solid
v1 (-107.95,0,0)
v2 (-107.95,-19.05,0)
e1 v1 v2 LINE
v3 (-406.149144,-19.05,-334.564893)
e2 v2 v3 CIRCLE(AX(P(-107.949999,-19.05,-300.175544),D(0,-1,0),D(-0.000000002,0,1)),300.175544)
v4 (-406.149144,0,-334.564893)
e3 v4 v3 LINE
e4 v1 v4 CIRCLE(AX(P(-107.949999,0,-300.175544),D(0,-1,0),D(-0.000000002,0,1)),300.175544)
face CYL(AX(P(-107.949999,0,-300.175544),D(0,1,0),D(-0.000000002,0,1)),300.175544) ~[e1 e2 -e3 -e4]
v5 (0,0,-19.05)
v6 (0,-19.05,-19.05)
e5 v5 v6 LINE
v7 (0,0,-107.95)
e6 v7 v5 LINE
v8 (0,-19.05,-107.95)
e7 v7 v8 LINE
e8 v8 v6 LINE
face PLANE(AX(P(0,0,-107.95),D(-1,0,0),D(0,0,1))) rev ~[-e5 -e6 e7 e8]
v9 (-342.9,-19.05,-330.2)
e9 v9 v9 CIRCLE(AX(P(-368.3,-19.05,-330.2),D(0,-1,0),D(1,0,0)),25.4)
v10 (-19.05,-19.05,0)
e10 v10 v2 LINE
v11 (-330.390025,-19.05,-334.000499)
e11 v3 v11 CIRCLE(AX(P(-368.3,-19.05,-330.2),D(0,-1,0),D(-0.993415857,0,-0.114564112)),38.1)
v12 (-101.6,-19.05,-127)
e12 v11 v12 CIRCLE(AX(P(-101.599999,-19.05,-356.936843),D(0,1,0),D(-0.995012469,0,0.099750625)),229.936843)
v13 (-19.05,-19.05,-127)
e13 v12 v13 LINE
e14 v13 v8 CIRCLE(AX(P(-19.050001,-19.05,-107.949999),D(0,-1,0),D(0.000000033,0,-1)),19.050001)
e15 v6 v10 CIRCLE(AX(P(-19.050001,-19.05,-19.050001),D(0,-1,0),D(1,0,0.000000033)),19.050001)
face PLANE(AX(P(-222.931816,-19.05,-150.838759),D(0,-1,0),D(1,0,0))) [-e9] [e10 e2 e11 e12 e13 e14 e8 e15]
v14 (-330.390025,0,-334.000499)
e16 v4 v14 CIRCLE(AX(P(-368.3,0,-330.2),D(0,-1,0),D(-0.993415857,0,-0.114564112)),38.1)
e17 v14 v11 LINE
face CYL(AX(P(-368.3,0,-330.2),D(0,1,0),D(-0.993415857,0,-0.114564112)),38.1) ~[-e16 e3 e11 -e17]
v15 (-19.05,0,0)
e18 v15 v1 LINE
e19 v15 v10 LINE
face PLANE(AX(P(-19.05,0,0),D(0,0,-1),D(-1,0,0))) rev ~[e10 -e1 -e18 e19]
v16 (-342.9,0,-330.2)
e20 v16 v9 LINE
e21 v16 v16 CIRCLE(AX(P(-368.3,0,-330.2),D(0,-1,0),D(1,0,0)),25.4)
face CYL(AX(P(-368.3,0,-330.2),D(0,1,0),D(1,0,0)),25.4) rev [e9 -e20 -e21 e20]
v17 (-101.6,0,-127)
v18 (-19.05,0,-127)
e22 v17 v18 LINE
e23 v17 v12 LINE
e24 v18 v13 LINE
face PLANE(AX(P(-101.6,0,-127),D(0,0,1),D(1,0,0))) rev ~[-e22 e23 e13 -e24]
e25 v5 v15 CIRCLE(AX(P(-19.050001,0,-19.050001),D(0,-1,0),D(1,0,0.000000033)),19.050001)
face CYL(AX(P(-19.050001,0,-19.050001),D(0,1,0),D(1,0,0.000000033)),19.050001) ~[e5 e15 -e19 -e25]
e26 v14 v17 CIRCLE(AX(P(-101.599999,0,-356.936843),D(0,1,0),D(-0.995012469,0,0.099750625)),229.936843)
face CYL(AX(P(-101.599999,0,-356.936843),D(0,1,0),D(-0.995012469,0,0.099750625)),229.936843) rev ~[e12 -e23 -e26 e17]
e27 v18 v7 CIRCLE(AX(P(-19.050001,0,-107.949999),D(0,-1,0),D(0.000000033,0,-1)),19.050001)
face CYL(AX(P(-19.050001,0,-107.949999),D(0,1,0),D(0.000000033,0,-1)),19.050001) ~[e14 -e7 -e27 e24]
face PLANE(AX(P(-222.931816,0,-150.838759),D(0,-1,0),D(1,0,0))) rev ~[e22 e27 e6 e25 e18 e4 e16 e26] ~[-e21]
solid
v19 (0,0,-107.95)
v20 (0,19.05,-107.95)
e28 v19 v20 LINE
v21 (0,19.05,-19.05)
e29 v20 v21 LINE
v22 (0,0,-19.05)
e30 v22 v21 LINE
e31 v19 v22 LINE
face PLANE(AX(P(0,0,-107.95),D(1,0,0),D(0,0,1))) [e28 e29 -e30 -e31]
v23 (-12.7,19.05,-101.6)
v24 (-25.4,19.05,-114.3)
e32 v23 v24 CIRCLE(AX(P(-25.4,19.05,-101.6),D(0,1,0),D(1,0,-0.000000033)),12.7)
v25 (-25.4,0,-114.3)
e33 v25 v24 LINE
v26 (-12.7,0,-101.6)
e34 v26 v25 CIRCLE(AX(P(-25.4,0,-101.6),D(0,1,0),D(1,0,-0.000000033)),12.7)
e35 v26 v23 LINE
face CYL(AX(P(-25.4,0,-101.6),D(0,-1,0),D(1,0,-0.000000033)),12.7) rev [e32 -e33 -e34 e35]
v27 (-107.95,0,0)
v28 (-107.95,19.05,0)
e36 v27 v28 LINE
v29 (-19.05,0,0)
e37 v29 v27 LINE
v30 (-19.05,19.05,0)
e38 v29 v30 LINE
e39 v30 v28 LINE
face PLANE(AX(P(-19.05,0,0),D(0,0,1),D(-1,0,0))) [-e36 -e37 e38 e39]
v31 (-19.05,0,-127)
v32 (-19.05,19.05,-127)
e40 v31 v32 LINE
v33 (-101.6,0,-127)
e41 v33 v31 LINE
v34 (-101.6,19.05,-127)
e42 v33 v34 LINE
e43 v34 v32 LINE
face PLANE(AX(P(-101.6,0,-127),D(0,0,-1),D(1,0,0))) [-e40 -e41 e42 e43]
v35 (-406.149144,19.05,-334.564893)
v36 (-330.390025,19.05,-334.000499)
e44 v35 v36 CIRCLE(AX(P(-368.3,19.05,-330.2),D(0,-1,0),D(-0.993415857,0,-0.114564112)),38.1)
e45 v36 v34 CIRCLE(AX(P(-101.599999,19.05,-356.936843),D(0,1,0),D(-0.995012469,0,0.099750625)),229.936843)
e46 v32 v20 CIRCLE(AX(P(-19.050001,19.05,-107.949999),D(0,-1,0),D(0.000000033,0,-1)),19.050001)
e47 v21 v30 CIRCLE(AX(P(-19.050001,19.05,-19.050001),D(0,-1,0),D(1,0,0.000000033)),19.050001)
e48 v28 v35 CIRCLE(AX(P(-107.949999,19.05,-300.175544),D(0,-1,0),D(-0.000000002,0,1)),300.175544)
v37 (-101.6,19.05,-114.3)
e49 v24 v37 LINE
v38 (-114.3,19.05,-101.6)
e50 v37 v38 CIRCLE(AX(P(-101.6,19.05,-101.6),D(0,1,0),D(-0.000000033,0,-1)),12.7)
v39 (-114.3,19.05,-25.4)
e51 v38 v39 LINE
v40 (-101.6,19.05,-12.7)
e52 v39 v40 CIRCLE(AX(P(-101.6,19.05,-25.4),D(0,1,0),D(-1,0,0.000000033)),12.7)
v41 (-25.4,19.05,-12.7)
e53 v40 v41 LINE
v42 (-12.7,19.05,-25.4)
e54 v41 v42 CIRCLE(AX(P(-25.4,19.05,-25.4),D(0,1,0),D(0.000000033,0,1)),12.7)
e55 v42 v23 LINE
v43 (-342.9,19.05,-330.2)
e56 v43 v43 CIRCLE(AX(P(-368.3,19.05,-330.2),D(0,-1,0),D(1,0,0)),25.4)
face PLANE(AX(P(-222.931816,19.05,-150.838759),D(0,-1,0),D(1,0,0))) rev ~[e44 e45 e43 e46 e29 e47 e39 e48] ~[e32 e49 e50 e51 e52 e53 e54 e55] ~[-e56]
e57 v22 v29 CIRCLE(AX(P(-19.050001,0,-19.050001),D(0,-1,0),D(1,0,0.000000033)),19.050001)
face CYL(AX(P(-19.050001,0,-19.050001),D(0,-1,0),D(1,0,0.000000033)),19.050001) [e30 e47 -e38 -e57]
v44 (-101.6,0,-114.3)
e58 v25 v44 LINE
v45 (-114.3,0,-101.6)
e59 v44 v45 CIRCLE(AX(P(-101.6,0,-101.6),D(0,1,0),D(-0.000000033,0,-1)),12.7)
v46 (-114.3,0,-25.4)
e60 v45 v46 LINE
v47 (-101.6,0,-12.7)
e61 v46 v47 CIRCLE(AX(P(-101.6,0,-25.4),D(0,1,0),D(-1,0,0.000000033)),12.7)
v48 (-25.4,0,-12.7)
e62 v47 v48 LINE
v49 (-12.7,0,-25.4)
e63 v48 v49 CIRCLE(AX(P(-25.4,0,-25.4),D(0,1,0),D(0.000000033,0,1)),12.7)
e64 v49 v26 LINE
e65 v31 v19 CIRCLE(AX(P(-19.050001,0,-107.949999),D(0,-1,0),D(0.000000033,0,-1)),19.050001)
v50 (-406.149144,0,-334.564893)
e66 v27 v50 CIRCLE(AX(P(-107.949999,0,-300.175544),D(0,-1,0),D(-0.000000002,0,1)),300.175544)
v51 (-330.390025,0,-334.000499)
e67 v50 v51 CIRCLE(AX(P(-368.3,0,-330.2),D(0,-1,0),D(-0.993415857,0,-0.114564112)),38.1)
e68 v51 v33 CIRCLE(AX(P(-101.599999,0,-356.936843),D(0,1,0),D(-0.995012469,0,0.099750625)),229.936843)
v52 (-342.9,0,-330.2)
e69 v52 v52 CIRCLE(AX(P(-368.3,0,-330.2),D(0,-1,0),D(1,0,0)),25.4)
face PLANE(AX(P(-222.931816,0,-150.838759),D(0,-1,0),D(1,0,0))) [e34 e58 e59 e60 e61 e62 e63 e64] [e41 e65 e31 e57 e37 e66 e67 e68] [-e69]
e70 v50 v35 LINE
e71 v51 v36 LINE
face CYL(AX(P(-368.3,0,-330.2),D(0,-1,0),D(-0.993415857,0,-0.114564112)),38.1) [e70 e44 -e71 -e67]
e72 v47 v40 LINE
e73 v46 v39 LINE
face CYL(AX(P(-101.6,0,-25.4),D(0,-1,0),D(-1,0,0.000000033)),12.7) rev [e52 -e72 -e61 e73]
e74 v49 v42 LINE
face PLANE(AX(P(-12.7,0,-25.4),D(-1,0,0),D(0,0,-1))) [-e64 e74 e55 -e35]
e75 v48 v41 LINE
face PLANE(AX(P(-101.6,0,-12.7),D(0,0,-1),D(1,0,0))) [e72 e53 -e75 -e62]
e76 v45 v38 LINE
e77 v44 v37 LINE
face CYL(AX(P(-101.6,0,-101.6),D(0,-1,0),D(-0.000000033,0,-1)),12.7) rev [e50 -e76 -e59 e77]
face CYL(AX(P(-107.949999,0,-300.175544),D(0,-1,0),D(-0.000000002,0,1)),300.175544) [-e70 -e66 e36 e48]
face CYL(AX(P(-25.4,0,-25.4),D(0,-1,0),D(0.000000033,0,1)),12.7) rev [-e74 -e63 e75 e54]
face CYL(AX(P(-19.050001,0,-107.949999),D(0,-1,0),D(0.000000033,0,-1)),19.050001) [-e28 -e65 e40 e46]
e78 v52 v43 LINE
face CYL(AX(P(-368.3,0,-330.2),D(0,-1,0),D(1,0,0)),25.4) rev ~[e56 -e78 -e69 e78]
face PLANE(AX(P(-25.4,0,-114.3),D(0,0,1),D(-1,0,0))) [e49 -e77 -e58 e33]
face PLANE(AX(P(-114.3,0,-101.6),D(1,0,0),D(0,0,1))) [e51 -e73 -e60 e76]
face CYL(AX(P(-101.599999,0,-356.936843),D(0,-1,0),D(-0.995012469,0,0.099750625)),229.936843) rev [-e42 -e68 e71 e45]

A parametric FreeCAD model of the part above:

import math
import FreeCAD as App
import Part
import Sketcher
from FreeCAD import Vector
Q = App.Units.Quantity

doc = App.newDocument("Part")
params = doc.addObject("Spreadsheet::Sheet", "Params")
for row, (alias, value) in enumerate([
    ("sketch1_diameter", "2 in"),
    ("sketch1_radius", "1.5 in"),
    ("sketch1_radius2", "0.75 in"),
    ("sketch1_width", "3.5 in"),
    ("pad1_length", "0.75 in"),
    ("sketch2_diameter", "2 in"),
    ("sketch2_radius", "1.5 in"),
    ("sketch2_radius2", "0.5 in"),
    ("sketch2_width", "3 in"),
    ("sketch2_radius3", "0.75 in"),
    ("pad2_length", "0.75 in"),
], start=1):
    params.set(f"A{row}", alias)
    params.set(f"B{row}", "=" + value)
    params.setAlias(f"B{row}", alias)

body = doc.addObject("PartDesign::Body", "Body")

sketch1 = body.newObject("Sketcher::SketchObject", "Sketch")
sketch1.AttachmentSupport = (doc.getObject("XZ_Plane"), [""])
sketch1.MapMode = "FlatFace"
sketch1.addGeometry([
    Part.LineSegment(Vector(-19, 0, 0), Vector(-108, 0, 0)),
    Part.ArcOfCircle(Part.Circle(Vector(-108, -300, 0), Vector(0, 0, 1), 300), math.radians(90), math.radians(187)),
    Part.ArcOfCircle(Part.Circle(Vector(-368, -330, 0), Vector(0, 0, 1), 38), math.radians(-173), math.radians(-6)),
    Part.ArcOfCircle(Part.Circle(Vector(-102, -357, 0), Vector(0, 0, 1), 230), math.radians(90), math.radians(174)),
    Part.LineSegment(Vector(-102, -127, 0), Vector(-19, -127, 0)),
    Part.ArcOfCircle(Part.Circle(Vector(-19, -108, 0), Vector(0, 0, 1), 19), math.radians(-90), math.radians(0)),
    Part.LineSegment(Vector(0, -108, 0), Vector(0, -19, 0)),
    Part.ArcOfCircle(Part.Circle(Vector(-19, -19, 0), Vector(0, 0, 1), 19), math.radians(0), math.radians(90)),
    Part.Circle(Vector(-368, -330, 0), Vector(0, 0, 1), 25),
], False)
sketch1.addConstraint([
    Sketcher.Constraint("Tangent", 0, 2, 1, 1),
    Sketcher.Constraint("Tangent", 1, 2, 2, 1),
    Sketcher.Constraint("Tangent", 2, 2, 3, 2),
    Sketcher.Constraint("Tangent", 3, 1, 4, 1),
    Sketcher.Constraint("Tangent", 4, 2, 5, 1),
    Sketcher.Constraint("Tangent", 5, 2, 6, 1),
    Sketcher.Constraint("Tangent", 6, 2, 7, 1),
    Sketcher.Constraint("Tangent", 7, 2, 0, 1),
    Sketcher.Constraint("Horizontal", 0),
    Sketcher.Constraint("Horizontal", 4),
    Sketcher.Constraint("Vertical", 6),
    Sketcher.Constraint("Coincident", 8, 3, 2, 3),
    Sketcher.Constraint("Equal", 5, 7),
    Sketcher.Constraint("PointOnObject", 0, 2, -1),
    Sketcher.Constraint("PointOnObject", 5, 2, -2),
    Sketcher.Constraint("Equal", 0, 6),
    Sketcher.Constraint("Diameter", 8, Q("2 in")),
    Sketcher.Constraint("Radius", 2, Q("1.5 in")),
    Sketcher.Constraint("Radius", 5, Q("0.75 in")),
    Sketcher.Constraint("DistanceX", 0, 2, 0, 1, Q("3.5 in")),
    Sketcher.Constraint("DistanceY", 2, 3, -1, 1, Q("13 in")),
    Sketcher.Constraint("DistanceX", 3, 3, -1, 1, Q("4 in")),
    Sketcher.Constraint("DistanceX", 2, 3, -1, 1, Q("14.5 in")),
])
sketch1.setExpression("Constraints[16]", "Params.sketch1_diameter")
sketch1.setExpression("Constraints[17]", "Params.sketch1_radius")
sketch1.setExpression("Constraints[18]", "Params.sketch1_radius2")
sketch1.setExpression("Constraints[19]", "Params.sketch1_width")
pad1 = body.newObject("PartDesign::Pad", "Pad")
pad1.Profile = sketch1
pad1.setExpression("Length", "Params.pad1_length")
body2 = doc.addObject("PartDesign::Body", "Body001")

sketch2 = body2.newObject("Sketcher::SketchObject", "Sketch001")
sketch2.AttachmentSupport = (doc.getObject("XZ_Plane001"), [""])
sketch2.MapMode = "FlatFace"
sketch2.addGeometry([
    Part.LineSegment(Vector(-19, 0, 0), Vector(-108, 0, 0)),
    Part.ArcOfCircle(Part.Circle(Vector(-108, -300, 0), Vector(0, 0, 1), 300), math.radians(90), math.radians(187)),
    Part.ArcOfCircle(Part.Circle(Vector(-368, -330, 0), Vector(0, 0, 1), 38), math.radians(-173), math.radians(-6)),
    Part.ArcOfCircle(Part.Circle(Vector(-102, -357, 0), Vector(0, 0, 1), 230), math.radians(90), math.radians(174)),
    Part.LineSegment(Vector(-102, -127, 0), Vector(-19, -127, 0)),
    Part.ArcOfCircle(Part.Circle(Vector(-19, -108, 0), Vector(0, 0, 1), 19), math.radians(-90), math.radians(0)),
    Part.LineSegment(Vector(0, -108, 0), Vector(0, -19, 0)),
    Part.ArcOfCircle(Part.Circle(Vector(-19, -19, 0), Vector(0, 0, 1), 19), math.radians(0), math.radians(90)),
    Part.Circle(Vector(-368, -330, 0), Vector(0, 0, 1), 25),
    Part.LineSegment(Vector(-114, -102, 0), Vector(-114, -25, 0)),
    Part.ArcOfCircle(Part.Circle(Vector(-102, -25, 0), Vector(0, 0, 1), 13), math.radians(90), math.radians(180)),
    Part.LineSegment(Vector(-102, -13, 0), Vector(-25, -13, 0)),
    Part.ArcOfCircle(Part.Circle(Vector(-25, -25, 0), Vector(0, 0, 1), 13), math.radians(0), math.radians(90)),
    Part.LineSegment(Vector(-13, -25, 0), Vector(-13, -102, 0)),
    Part.ArcOfCircle(Part.Circle(Vector(-25, -102, 0), Vector(0, 0, 1), 13), math.radians(-90), math.radians(0)),
    Part.LineSegment(Vector(-25, -114, 0), Vector(-102, -114, 0)),
    Part.ArcOfCircle(Part.Circle(Vector(-102, -102, 0), Vector(0, 0, 1), 13), math.radians(-180), math.radians(-90)),
], False)
sketch2.addConstraint([
    Sketcher.Constraint("Tangent", 0, 2, 1, 1),
    Sketcher.Constraint("Tangent", 1, 2, 2, 1),
    Sketcher.Constraint("Tangent", 2, 2, 3, 2),
    Sketcher.Constraint("Tangent", 3, 1, 4, 1),
    Sketcher.Constraint("Tangent", 4, 2, 5, 1),
    Sketcher.Constraint("Tangent", 5, 2, 6, 1),
    Sketcher.Constraint("Tangent", 6, 2, 7, 1),
    Sketcher.Constraint("Tangent", 7, 2, 0, 1),
    Sketcher.Constraint("Tangent", 9, 2, 10, 2),
    Sketcher.Constraint("Tangent", 10, 1, 11, 1),
    Sketcher.Constraint("Tangent", 11, 2, 12, 2),
    Sketcher.Constraint("Tangent", 12, 1, 13, 1),
    Sketcher.Constraint("Tangent", 13, 2, 14, 2),
    Sketcher.Constraint("Tangent", 14, 1, 15, 1),
    Sketcher.Constraint("Tangent", 15, 2, 16, 2),
    Sketcher.Constraint("Tangent", 16, 1, 9, 1),
    Sketcher.Constraint("Horizontal", 0),
    Sketcher.Constraint("Horizontal", 4),
    Sketcher.Constraint("Vertical", 6),
    Sketcher.Constraint("Vertical", 9),
    Sketcher.Constraint("Horizontal", 11),
    Sketcher.Constraint("Vertical", 13),
    Sketcher.Constraint("Horizontal", 15),
    Sketcher.Constraint("Coincident", 8, 3, 2, 3),
    Sketcher.Constraint("Equal", 5, 7),
    Sketcher.Constraint("Equal", 10, 12),
    Sketcher.Constraint("Equal", 12, 14),
    Sketcher.Constraint("Equal", 14, 16),
    Sketcher.Constraint("PointOnObject", 0, 2, -1),
    Sketcher.Constraint("PointOnObject", 5, 2, -2),
    Sketcher.Constraint("Vertical", 3, 3, 10, 3),
    Sketcher.Constraint("Equal", 0, 6),
    Sketcher.Constraint("Equal", 15, 9),
    Sketcher.Constraint("Diameter", 8, Q("2 in")),
    Sketcher.Constraint("Radius", 2, Q("1.5 in")),
    Sketcher.Constraint("Radius", 10, Q("0.5 in")),
    Sketcher.Constraint("DistanceX", 11, 1, 11, 2, Q("3 in")),
    Sketcher.Constraint("Radius", 5, Q("0.75 in")),
    Sketcher.Constraint("DistanceX", 0, 2, 0, 1, Q("3.5 in")),
    Sketcher.Constraint("DistanceY", 2, 3, -1, 1, Q("13 in")),
    Sketcher.Constraint("DistanceX", 3, 3, -1, 1, Q("4 in")),
    Sketcher.Constraint("DistanceY", 10, 3, -1, 1, Q("1 in")),
    Sketcher.Constraint("DistanceX", 2, 3, -1, 1, Q("14.5 in")),
])
sketch2.setExpression("Constraints[33]", "Params.sketch2_diameter")
sketch2.setExpression("Constraints[34]", "Params.sketch2_radius")
sketch2.setExpression("Constraints[35]", "Params.sketch2_radius2")
sketch2.setExpression("Constraints[36]", "Params.sketch2_width")
sketch2.setExpression("Constraints[37]", "Params.sketch2_radius3")
pad2 = body2.newObject("PartDesign::Pad", "Pad001")
pad2.Profile = sketch2
pad2.setExpression("Length", "Params.pad2_length")
pad2.Reversed = True

doc.recompute()
